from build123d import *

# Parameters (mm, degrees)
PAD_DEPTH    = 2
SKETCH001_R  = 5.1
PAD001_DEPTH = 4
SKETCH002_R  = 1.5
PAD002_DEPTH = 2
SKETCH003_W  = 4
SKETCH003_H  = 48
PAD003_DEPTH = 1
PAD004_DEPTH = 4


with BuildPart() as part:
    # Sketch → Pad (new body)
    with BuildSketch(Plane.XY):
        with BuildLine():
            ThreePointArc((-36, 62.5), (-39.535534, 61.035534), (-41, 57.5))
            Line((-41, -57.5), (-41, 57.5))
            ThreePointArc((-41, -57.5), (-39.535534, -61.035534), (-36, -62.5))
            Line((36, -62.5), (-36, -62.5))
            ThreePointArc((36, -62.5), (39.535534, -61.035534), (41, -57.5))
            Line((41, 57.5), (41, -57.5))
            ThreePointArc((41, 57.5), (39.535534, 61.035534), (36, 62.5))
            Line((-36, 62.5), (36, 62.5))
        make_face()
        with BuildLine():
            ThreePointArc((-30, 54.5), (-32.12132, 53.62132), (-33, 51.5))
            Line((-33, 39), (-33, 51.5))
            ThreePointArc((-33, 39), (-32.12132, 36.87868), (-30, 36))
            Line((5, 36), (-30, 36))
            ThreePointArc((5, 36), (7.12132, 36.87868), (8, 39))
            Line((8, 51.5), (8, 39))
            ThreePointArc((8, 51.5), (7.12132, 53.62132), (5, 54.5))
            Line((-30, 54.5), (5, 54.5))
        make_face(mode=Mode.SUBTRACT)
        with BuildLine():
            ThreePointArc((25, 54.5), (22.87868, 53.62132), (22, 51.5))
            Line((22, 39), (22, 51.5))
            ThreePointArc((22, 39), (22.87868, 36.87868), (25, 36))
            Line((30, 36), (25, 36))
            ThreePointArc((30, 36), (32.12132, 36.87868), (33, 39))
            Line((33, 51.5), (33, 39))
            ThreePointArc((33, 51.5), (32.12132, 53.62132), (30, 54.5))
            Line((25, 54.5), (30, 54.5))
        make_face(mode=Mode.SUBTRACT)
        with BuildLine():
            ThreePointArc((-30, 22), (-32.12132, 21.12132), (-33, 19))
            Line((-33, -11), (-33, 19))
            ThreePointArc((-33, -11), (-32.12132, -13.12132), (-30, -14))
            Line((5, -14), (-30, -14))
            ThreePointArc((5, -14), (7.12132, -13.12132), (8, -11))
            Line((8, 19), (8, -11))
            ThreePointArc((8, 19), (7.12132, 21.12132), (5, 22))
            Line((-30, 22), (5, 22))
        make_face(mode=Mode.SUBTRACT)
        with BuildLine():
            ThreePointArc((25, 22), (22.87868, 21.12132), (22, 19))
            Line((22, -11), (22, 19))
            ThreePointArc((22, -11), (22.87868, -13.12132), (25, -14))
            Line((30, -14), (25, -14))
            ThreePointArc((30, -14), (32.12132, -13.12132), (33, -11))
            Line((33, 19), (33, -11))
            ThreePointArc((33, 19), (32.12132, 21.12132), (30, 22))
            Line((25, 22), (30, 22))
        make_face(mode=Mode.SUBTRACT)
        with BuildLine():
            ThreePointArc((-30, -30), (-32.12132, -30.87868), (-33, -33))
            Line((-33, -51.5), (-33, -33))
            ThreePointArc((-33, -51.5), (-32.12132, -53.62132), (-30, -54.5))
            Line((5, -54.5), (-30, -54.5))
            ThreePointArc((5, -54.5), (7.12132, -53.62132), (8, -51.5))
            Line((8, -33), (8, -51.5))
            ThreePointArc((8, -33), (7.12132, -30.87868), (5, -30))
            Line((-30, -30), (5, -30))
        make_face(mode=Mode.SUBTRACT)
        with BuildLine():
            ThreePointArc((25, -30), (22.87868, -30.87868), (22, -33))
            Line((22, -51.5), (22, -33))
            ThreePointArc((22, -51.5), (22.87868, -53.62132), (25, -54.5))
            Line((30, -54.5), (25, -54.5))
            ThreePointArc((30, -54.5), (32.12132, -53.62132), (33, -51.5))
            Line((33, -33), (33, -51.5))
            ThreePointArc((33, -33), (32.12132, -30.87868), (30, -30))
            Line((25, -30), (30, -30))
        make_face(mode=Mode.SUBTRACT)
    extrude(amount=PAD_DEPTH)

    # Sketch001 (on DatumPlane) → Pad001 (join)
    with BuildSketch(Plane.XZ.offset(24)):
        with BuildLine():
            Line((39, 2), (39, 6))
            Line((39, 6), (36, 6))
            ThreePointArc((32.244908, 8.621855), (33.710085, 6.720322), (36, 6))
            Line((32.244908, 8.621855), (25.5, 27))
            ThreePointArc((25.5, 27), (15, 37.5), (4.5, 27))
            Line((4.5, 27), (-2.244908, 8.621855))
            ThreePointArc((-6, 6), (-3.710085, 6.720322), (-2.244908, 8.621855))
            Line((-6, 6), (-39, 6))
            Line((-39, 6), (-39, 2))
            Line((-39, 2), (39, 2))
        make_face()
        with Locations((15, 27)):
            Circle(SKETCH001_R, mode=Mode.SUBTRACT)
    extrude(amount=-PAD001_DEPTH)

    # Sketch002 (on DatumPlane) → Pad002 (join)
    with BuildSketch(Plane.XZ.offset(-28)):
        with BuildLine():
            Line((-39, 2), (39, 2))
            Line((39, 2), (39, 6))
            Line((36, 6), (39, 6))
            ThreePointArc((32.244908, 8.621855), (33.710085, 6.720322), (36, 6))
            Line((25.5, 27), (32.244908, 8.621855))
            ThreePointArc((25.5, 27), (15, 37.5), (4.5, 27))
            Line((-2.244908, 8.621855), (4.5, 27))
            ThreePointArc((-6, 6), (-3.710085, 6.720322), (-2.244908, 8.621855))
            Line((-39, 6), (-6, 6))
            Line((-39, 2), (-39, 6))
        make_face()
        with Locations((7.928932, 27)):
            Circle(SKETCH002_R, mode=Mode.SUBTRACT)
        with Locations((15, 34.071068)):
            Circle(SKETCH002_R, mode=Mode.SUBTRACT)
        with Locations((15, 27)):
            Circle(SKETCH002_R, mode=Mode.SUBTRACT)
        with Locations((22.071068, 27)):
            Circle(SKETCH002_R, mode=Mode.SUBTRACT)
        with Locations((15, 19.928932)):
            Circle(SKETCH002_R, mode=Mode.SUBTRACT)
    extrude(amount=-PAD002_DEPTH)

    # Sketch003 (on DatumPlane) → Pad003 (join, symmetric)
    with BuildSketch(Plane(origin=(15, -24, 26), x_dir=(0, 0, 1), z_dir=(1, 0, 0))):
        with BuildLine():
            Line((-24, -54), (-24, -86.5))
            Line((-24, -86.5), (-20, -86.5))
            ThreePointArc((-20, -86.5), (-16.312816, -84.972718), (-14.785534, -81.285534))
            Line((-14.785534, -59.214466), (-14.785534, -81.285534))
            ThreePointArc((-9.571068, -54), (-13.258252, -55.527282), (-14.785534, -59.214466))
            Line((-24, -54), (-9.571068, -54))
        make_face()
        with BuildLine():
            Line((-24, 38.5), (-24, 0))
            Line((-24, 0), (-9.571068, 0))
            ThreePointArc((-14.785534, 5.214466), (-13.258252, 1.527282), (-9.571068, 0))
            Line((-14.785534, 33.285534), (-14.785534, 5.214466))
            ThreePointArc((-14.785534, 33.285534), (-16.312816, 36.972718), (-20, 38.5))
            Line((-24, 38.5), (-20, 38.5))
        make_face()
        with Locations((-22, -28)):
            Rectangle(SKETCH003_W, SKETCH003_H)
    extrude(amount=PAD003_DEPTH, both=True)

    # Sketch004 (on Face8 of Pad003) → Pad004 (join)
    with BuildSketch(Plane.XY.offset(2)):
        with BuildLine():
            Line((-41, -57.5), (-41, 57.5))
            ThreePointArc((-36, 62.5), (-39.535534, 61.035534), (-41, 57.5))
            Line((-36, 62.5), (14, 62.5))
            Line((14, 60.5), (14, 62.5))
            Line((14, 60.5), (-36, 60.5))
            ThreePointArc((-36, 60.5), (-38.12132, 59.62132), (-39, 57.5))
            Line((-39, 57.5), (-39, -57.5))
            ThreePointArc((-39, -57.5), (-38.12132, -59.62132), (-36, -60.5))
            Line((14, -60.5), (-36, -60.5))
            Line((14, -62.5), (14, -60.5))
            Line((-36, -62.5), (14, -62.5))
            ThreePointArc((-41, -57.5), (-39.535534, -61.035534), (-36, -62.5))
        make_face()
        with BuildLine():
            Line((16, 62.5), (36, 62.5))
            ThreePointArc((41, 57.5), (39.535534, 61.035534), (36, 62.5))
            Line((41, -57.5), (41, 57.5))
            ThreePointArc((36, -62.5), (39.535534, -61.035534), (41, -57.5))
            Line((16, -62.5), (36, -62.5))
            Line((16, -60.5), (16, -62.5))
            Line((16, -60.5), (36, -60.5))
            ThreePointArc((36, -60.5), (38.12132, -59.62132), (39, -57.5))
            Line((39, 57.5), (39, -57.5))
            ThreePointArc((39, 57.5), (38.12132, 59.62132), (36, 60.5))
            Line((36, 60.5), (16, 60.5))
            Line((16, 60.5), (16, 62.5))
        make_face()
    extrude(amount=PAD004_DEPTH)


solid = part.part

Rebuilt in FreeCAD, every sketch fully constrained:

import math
import FreeCAD as App
import Part
import Sketcher
from FreeCAD import Vector

doc = App.newDocument("Part")
body = doc.addObject("PartDesign::Body", "Body")

# Sketch on XY plane
sketch1 = body.newObject("Sketcher::SketchObject", "Sketch")
sketch1.AttachmentSupport = (doc.getObject("XY_Plane"), [""])
sketch1.MapMode = "FlatFace"
sketch1.addGeometry(Part.ArcOfCircle(Part.Circle(Vector(-36, 57.5, 0), Vector(0, 0, 1), 5), math.radians(89.999996), math.radians(180.000004)), False)
sketch1.addGeometry(Part.LineSegment(Vector(-41, 57.5, 0), Vector(-41, -57.5, 0)), False)
sketch1.addGeometry(Part.ArcOfCircle(Part.Circle(Vector(-36, -57.5, 0), Vector(0, 0, 1), 5), math.radians(179.999996), math.radians(270.000004)), False)
sketch1.addGeometry(Part.LineSegment(Vector(-36, -62.5, 0), Vector(36, -62.5, 0)), False)
sketch1.addGeometry(Part.ArcOfCircle(Part.Circle(Vector(36, -57.5, 0), Vector(0, 0, 1), 5), math.radians(-90.000004), math.radians(0.000004)), False)
sketch1.addGeometry(Part.LineSegment(Vector(41, -57.5, 0), Vector(41, 57.5, 0)), False)
sketch1.addGeometry(Part.ArcOfCircle(Part.Circle(Vector(36, 57.5, 0), Vector(0, 0, 1), 5), math.radians(-0.000004), math.radians(90.000004)), False)
sketch1.addGeometry(Part.LineSegment(Vector(36, 62.5, 0), Vector(-36, 62.5, 0)), False)
sketch1.addGeometry(Part.ArcOfCircle(Part.Circle(Vector(-29.999999, -33.000001, 0), Vector(0, 0, 1), 3.000001), math.radians(90.000022), math.radians(179.999978)), False)
sketch1.addGeometry(Part.LineSegment(Vector(-30, -30, 0), Vector(5, -30, 0)), False)
sketch1.addGeometry(Part.ArcOfCircle(Part.Circle(Vector(4.999999, -33.000001, 0), Vector(0, 0, 1), 3.000001), math.radians(0.000022), math.radians(89.999978)), False)
sketch1.addGeometry(Part.LineSegment(Vector(8, -33, 0), Vector(8, -51.5, 0)), False)
sketch1.addGeometry(Part.ArcOfCircle(Part.Circle(Vector(4.999999, -51.499999, 0), Vector(0, 0, 1), 3.000001), math.radians(-89.999978), math.radians(-0.000022)), False)
sketch1.addGeometry(Part.LineSegment(Vector(5, -54.5, 0), Vector(-30, -54.5, 0)), False)
sketch1.addGeometry(Part.ArcOfCircle(Part.Circle(Vector(-29.999999, -51.499999, 0), Vector(0, 0, 1), 3.000001), math.radians(-179.999978), math.radians(-90.000022)), False)
sketch1.addGeometry(Part.LineSegment(Vector(-33, -51.5, 0), Vector(-33, -33, 0)), False)
sketch1.addGeometry(Part.ArcOfCircle(Part.Circle(Vector(25.000001, -33.000001, 0), Vector(0, 0, 1), 3.000001), math.radians(90.000022), math.radians(179.999978)), False)
sketch1.addGeometry(Part.LineSegment(Vector(25, -30, 0), Vector(30, -30, 0)), False)
sketch1.addGeometry(Part.ArcOfCircle(Part.Circle(Vector(29.999999, -33.000001, 0), Vector(0, 0, 1), 3.000001), math.radians(0.000022), math.radians(89.999978)), False)
sketch1.addGeometry(Part.LineSegment(Vector(33, -33, 0), Vector(33, -51.5, 0)), False)
sketch1.addGeometry(Part.ArcOfCircle(Part.Circle(Vector(29.999999, -51.499999, 0), Vector(0, 0, 1), 3.000001), math.radians(-89.999978), math.radians(-0.000022)), False)
sketch1.addGeometry(Part.LineSegment(Vector(30, -54.5, 0), Vector(25, -54.5, 0)), False)
sketch1.addGeometry(Part.ArcOfCircle(Part.Circle(Vector(25.000001, -51.499999, 0), Vector(0, 0, 1), 3.000001), math.radians(-179.999978), math.radians(-90.000022)), False)
sketch1.addGeometry(Part.LineSegment(Vector(22, -51.5, 0), Vector(22, -33, 0)), False)
sketch1.addGeometry(Part.ArcOfCircle(Part.Circle(Vector(-29.999999, 18.999999, 0), Vector(0, 0, 1), 3.000001), math.radians(90.000022), math.radians(179.999978)), False)
sketch1.addGeometry(Part.LineSegment(Vector(-30, 22, 0), Vector(5, 22, 0)), False)
sketch1.addGeometry(Part.ArcOfCircle(Part.Circle(Vector(4.999999, 18.999999, 0), Vector(0, 0, 1), 3.000001), math.radians(0.000022), math.radians(89.999978)), False)
sketch1.addGeometry(Part.LineSegment(Vector(8, 19, 0), Vector(8, -11, 0)), False)
sketch1.addGeometry(Part.ArcOfCircle(Part.Circle(Vector(4.999999, -10.999999, 0), Vector(0, 0, 1), 3.000001), math.radians(-89.999978), math.radians(-0.000022)), False)
sketch1.addGeometry(Part.LineSegment(Vector(5, -14, 0), Vector(-30, -14, 0)), False)
sketch1.addGeometry(Part.ArcOfCircle(Part.Circle(Vector(-29.999999, -10.999999, 0), Vector(0, 0, 1), 3.000001), math.radians(-179.999978), math.radians(-90.000022)), False)
sketch1.addGeometry(Part.LineSegment(Vector(-33, -11, 0), Vector(-33, 19, 0)), False)
sketch1.addGeometry(Part.ArcOfCircle(Part.Circle(Vector(-29.999999, 51.499999, 0), Vector(0, 0, 1), 3.000001), math.radians(90.000022), math.radians(179.999978)), False)
sketch1.addGeometry(Part.LineSegment(Vector(-30, 54.5, 0), Vector(5, 54.5, 0)), False)
sketch1.addGeometry(Part.ArcOfCircle(Part.Circle(Vector(4.999999, 51.499999, 0), Vector(0, 0, 1), 3.000001), math.radians(0.000022), math.radians(89.999978)), False)
sketch1.addGeometry(Part.LineSegment(Vector(8, 51.5, 0), Vector(8, 39, 0)), False)
sketch1.addGeometry(Part.ArcOfCircle(Part.Circle(Vector(4.999999, 39.000001, 0), Vector(0, 0, 1), 3.000001), math.radians(-89.999978), math.radians(-0.000022)), False)
sketch1.addGeometry(Part.LineSegment(Vector(5, 36, 0), Vector(-30, 36, 0)), False)
sketch1.addGeometry(Part.ArcOfCircle(Part.Circle(Vector(-29.999999, 39.000001, 0), Vector(0, 0, 1), 3.000001), math.radians(-179.999978), math.radians(-90.000022)), False)
sketch1.addGeometry(Part.LineSegment(Vector(-33, 39, 0), Vector(-33, 51.5, 0)), False)
sketch1.addGeometry(Part.ArcOfCircle(Part.Circle(Vector(25.000001, 18.999999, 0), Vector(0, 0, 1), 3.000001), math.radians(90.000022), math.radians(179.999978)), False)
sketch1.addGeometry(Part.LineSegment(Vector(25, 22, 0), Vector(30, 22, 0)), False)
sketch1.addGeometry(Part.ArcOfCircle(Part.Circle(Vector(29.999999, 18.999999, 0), Vector(0, 0, 1), 3.000001), math.radians(0.000022), math.radians(89.999978)), False)
sketch1.addGeometry(Part.LineSegment(Vector(33, 19, 0), Vector(33, -11, 0)), False)
sketch1.addGeometry(Part.ArcOfCircle(Part.Circle(Vector(29.999999, -10.999999, 0), Vector(0, 0, 1), 3.000001), math.radians(-89.999978), math.radians(-0.000022)), False)
sketch1.addGeometry(Part.LineSegment(Vector(30, -14, 0), Vector(25, -14, 0)), False)
sketch1.addGeometry(Part.ArcOfCircle(Part.Circle(Vector(25.000001, -10.999999, 0), Vector(0, 0, 1), 3.000001), math.radians(-179.999978), math.radians(-90.000022)), False)
sketch1.addGeometry(Part.LineSegment(Vector(22, -11, 0), Vector(22, 19, 0)), False)
sketch1.addGeometry(Part.ArcOfCircle(Part.Circle(Vector(25.000001, 51.499999, 0), Vector(0, 0, 1), 3.000001), math.radians(90.000022), math.radians(179.999978)), False)
sketch1.addGeometry(Part.LineSegment(Vector(25, 54.5, 0), Vector(30, 54.5, 0)), False)
sketch1.addGeometry(Part.ArcOfCircle(Part.Circle(Vector(29.999999, 51.499999, 0), Vector(0, 0, 1), 3.000001), math.radians(0.000022), math.radians(89.999978)), False)
sketch1.addGeometry(Part.LineSegment(Vector(33, 51.5, 0), Vector(33, 39, 0)), False)
sketch1.addGeometry(Part.ArcOfCircle(Part.Circle(Vector(29.999999, 39.000001, 0), Vector(0, 0, 1), 3.000001), math.radians(-89.999978), math.radians(-0.000022)), False)
sketch1.addGeometry(Part.LineSegment(Vector(30, 36, 0), Vector(25, 36, 0)), False)
sketch1.addGeometry(Part.ArcOfCircle(Part.Circle(Vector(25.000001, 39.000001, 0), Vector(0, 0, 1), 3.000001), math.radians(-179.999978), math.radians(-90.000022)), False)
sketch1.addGeometry(Part.LineSegment(Vector(22, 39, 0), Vector(22, 51.5, 0)), False)
sketch1.addConstraint(Sketcher.Constraint("Tangent", 0, 2, 1, 1))
sketch1.addConstraint(Sketcher.Constraint("Tangent", 1, 2, 2, 1))
sketch1.addConstraint(Sketcher.Constraint("Tangent", 2, 2, 3, 1))
sketch1.addConstraint(Sketcher.Constraint("Tangent", 3, 2, 4, 1))
sketch1.addConstraint(Sketcher.Constraint("Tangent", 4, 2, 5, 1))
sketch1.addConstraint(Sketcher.Constraint("Tangent", 5, 2, 6, 1))
sketch1.addConstraint(Sketcher.Constraint("Tangent", 6, 2, 7, 1))
sketch1.addConstraint(Sketcher.Constraint("Tangent", 7, 2, 0, 1))
sketch1.addConstraint(Sketcher.Constraint("Tangent", 8, 1, 9, 1))
sketch1.addConstraint(Sketcher.Constraint("Tangent", 9, 2, 10, 2))
sketch1.addConstraint(Sketcher.Constraint("Tangent", 10, 1, 11, 1))
sketch1.addConstraint(Sketcher.Constraint("Tangent", 11, 2, 12, 2))
sketch1.addConstraint(Sketcher.Constraint("Tangent", 12, 1, 13, 1))
sketch1.addConstraint(Sketcher.Constraint("Tangent", 13, 2, 14, 2))
sketch1.addConstraint(Sketcher.Constraint("Tangent", 14, 1, 15, 1))
sketch1.addConstraint(Sketcher.Constraint("Tangent", 15, 2, 8, 2))
sketch1.addConstraint(Sketcher.Constraint("Tangent", 16, 1, 17, 1))
sketch1.addConstraint(Sketcher.Constraint("Tangent", 17, 2, 18, 2))
sketch1.addConstraint(Sketcher.Constraint("Tangent", 18, 1, 19, 1))
sketch1.addConstraint(Sketcher.Constraint("Tangent", 19, 2, 20, 2))
sketch1.addConstraint(Sketcher.Constraint("Tangent", 20, 1, 21, 1))
sketch1.addConstraint(Sketcher.Constraint("Tangent", 21, 2, 22, 2))
sketch1.addConstraint(Sketcher.Constraint("Tangent", 22, 1, 23, 1))
sketch1.addConstraint(Sketcher.Constraint("Tangent", 23, 2, 16, 2))
sketch1.addConstraint(Sketcher.Constraint("Tangent", 24, 1, 25, 1))
sketch1.addConstraint(Sketcher.Constraint("Tangent", 25, 2, 26, 2))
sketch1.addConstraint(Sketcher.Constraint("Tangent", 26, 1, 27, 1))
sketch1.addConstraint(Sketcher.Constraint("Tangent", 27, 2, 28, 2))
sketch1.addConstraint(Sketcher.Constraint("Tangent", 28, 1, 29, 1))
sketch1.addConstraint(Sketcher.Constraint("Tangent", 29, 2, 30, 2))
sketch1.addConstraint(Sketcher.Constraint("Tangent", 30, 1, 31, 1))
sketch1.addConstraint(Sketcher.Constraint("Tangent", 31, 2, 24, 2))
sketch1.addConstraint(Sketcher.Constraint("Tangent", 32, 1, 33, 1))
sketch1.addConstraint(Sketcher.Constraint("Tangent", 33, 2, 34, 2))
sketch1.addConstraint(Sketcher.Constraint("Tangent", 34, 1, 35, 1))
sketch1.addConstraint(Sketcher.Constraint("Tangent", 35, 2, 36, 2))
sketch1.addConstraint(Sketcher.Constraint("Tangent", 36, 1, 37, 1))
sketch1.addConstraint(Sketcher.Constraint("Tangent", 37, 2, 38, 2))
sketch1.addConstraint(Sketcher.Constraint("Tangent", 38, 1, 39, 1))
sketch1.addConstraint(Sketcher.Constraint("Tangent", 39, 2, 32, 2))
sketch1.addConstraint(Sketcher.Constraint("Tangent", 40, 1, 41, 1))
sketch1.addConstraint(Sketcher.Constraint("Tangent", 41, 2, 42, 2))
sketch1.addConstraint(Sketcher.Constraint("Tangent", 42, 1, 43, 1))
sketch1.addConstraint(Sketcher.Constraint("Tangent", 43, 2, 44, 2))
sketch1.addConstraint(Sketcher.Constraint("Tangent", 44, 1, 45, 1))
sketch1.addConstraint(Sketcher.Constraint("Tangent", 45, 2, 46, 2))
sketch1.addConstraint(Sketcher.Constraint("Tangent", 46, 1, 47, 1))
sketch1.addConstraint(Sketcher.Constraint("Tangent", 47, 2, 40, 2))
sketch1.addConstraint(Sketcher.Constraint("Tangent", 48, 1, 49, 1))
sketch1.addConstraint(Sketcher.Constraint("Tangent", 49, 2, 50, 2))
sketch1.addConstraint(Sketcher.Constraint("Tangent", 50, 1, 51, 1))
sketch1.addConstraint(Sketcher.Constraint("Tangent", 51, 2, 52, 2))
sketch1.addConstraint(Sketcher.Constraint("Tangent", 52, 1, 53, 1))
sketch1.addConstraint(Sketcher.Constraint("Tangent", 53, 2, 54, 2))
sketch1.addConstraint(Sketcher.Constraint("Tangent", 54, 1, 55, 1))
sketch1.addConstraint(Sketcher.Constraint("Tangent", 55, 2, 48, 2))
sketch1.addConstraint(Sketcher.Constraint("Vertical", 1))
sketch1.addConstraint(Sketcher.Constraint("Horizontal", 3))
sketch1.addConstraint(Sketcher.Constraint("Vertical", 5))
sketch1.addConstraint(Sketcher.Constraint("Horizontal", 7))
sketch1.addConstraint(Sketcher.Constraint("Horizontal", 9))
sketch1.addConstraint(Sketcher.Constraint("Vertical", 11))
sketch1.addConstraint(Sketcher.Constraint("Horizontal", 13))
sketch1.addConstraint(Sketcher.Constraint("Vertical", 15))
sketch1.addConstraint(Sketcher.Constraint("Horizontal", 17))
sketch1.addConstraint(Sketcher.Constraint("Vertical", 19))
sketch1.addConstraint(Sketcher.Constraint("Horizontal", 21))
sketch1.addConstraint(Sketcher.Constraint("Vertical", 23))
sketch1.addConstraint(Sketcher.Constraint("Horizontal", 25))
sketch1.addConstraint(Sketcher.Constraint("Vertical", 27))
sketch1.addConstraint(Sketcher.Constraint("Horizontal", 29))
sketch1.addConstraint(Sketcher.Constraint("Vertical", 31))
sketch1.addConstraint(Sketcher.Constraint("Horizontal", 33))
sketch1.addConstraint(Sketcher.Constraint("Vertical", 35))
sketch1.addConstraint(Sketcher.Constraint("Horizontal", 37))
sketch1.addConstraint(Sketcher.Constraint("Vertical", 39))
sketch1.addConstraint(Sketcher.Constraint("Horizontal", 41))
sketch1.addConstraint(Sketcher.Constraint("Vertical", 43))
sketch1.addConstraint(Sketcher.Constraint("Horizontal", 45))
sketch1.addConstraint(Sketcher.Constraint("Vertical", 47))
sketch1.addConstraint(Sketcher.Constraint("Horizontal", 49))
sketch1.addConstraint(Sketcher.Constraint("Vertical", 51))
sketch1.addConstraint(Sketcher.Constraint("Horizontal", 53))
sketch1.addConstraint(Sketcher.Constraint("Vertical", 55))
sketch1.addConstraint(Sketcher.Constraint("Equal", 0, 2))
sketch1.addConstraint(Sketcher.Constraint("Equal", 2, 4))
sketch1.addConstraint(Sketcher.Constraint("Equal", 4, 6))
sketch1.addConstraint(Sketcher.Constraint("Equal", 8, 10))
sketch1.addConstraint(Sketcher.Constraint("Equal", 10, 12))
sketch1.addConstraint(Sketcher.Constraint("Equal", 12, 14))
sketch1.addConstraint(Sketcher.Constraint("Equal", 14, 16))
sketch1.addConstraint(Sketcher.Constraint("Equal", 16, 18))
sketch1.addConstraint(Sketcher.Constraint("Equal", 18, 20))
sketch1.addConstraint(Sketcher.Constraint("Equal", 20, 22))
sketch1.addConstraint(Sketcher.Constraint("Equal", 22, 24))
sketch1.addConstraint(Sketcher.Constraint("Equal", 24, 26))
sketch1.addConstraint(Sketcher.Constraint("Equal", 26, 28))
sketch1.addConstraint(Sketcher.Constraint("Equal", 28, 30))
sketch1.addConstraint(Sketcher.Constraint("Equal", 30, 32))
sketch1.addConstraint(Sketcher.Constraint("Equal", 32, 34))
sketch1.addConstraint(Sketcher.Constraint("Equal", 34, 36))
sketch1.addConstraint(Sketcher.Constraint("Equal", 36, 38))
sketch1.addConstraint(Sketcher.Constraint("Equal", 38, 40))
sketch1.addConstraint(Sketcher.Constraint("Equal", 40, 42))
sketch1.addConstraint(Sketcher.Constraint("Equal", 42, 44))
sketch1.addConstraint(Sketcher.Constraint("Equal", 44, 46))
sketch1.addConstraint(Sketcher.Constraint("Equal", 46, 48))
sketch1.addConstraint(Sketcher.Constraint("Equal", 48, 50))
sketch1.addConstraint(Sketcher.Constraint("Equal", 50, 52))
sketch1.addConstraint(Sketcher.Constraint("Equal", 52, 54))
sketch1.addConstraint(Sketcher.Constraint("Symmetric", 0, 3, 4, 3, -1, 1))
sketch1.addConstraint(Sketcher.Constraint("Symmetric", 20, 3, 32, 3, -1, 1))
sketch1.addConstraint(Sketcher.Constraint("Symmetric", 14, 3, 50, 3, -1, 1))
sketch1.addConstraint(Sketcher.Constraint("Symmetric", 8, 3, 18, 3, -2))
sketch1.addConstraint(Sketcher.Constraint("Symmetric", 24, 3, 42, 3, -2))
sketch1.addConstraint(Sketcher.Constraint("Symmetric", 12, 3, 34, 3, -1))
sketch1.addConstraint(Sketcher.Constraint("Horizontal", 30, 3, 44, 3))
sketch1.addConstraint(Sketcher.Constraint("Horizontal", 38, 3, 52, 3))
sketch1.addConstraint(Sketcher.Constraint("Vertical", 14, 3, 24, 3))
sketch1.addConstraint(Sketcher.Constraint("Vertical", 12, 3, 26, 3))
sketch1.addConstraint(Sketcher.Constraint("Vertical", 22, 3, 40, 3))
sketch1.addConstraint(Sketcher.Constraint("Vertical", 46, 3, 48, 3))
sketch1.addConstraint(Sketcher.Constraint("Radius", 0, 5.0))
sketch1.addConstraint(Sketcher.Constraint("Radius", 8, 3.000001))
sketch1.addConstraint(Sketcher.Constraint("DistanceX", 3, 1, 3, 2, 72.0))
sketch1.addConstraint(Sketcher.Constraint("DistanceX", 9, 1, 9, 2, 35.0))
sketch1.addConstraint(Sketcher.Constraint("DistanceX", 17, 1, 17, 2, 5.0))
sketch1.addConstraint(Sketcher.Constraint("DistanceY", 1, 2, 1, 1, 115.0))
sketch1.addConstraint(Sketcher.Constraint("DistanceY", 27, 2, 27, 1, 30.0))
sketch1.addConstraint(Sketcher.Constraint("DistanceY", 11, 2, 11, 1, 18.5))
sketch1.addConstraint(Sketcher.Constraint("DistanceY", 35, 2, 35, 1, 12.5))
sketch1.addConstraint(Sketcher.Constraint("DistanceX", 8, 3, -1, 1, 29.999999))
sketch1.addConstraint(Sketcher.Constraint("DistanceY", 8, 3, -1, 1, 33.000001))
sketch1.addConstraint(Sketcher.Constraint("DistanceY", -1, 1, 24, 3, 18.999999))
pad1 = body.newObject("PartDesign::Pad", "Pad")
pad1.Profile = sketch1
pad1.Length = 2

# Sketch on XZ plane
sketch2 = body.newObject("Sketcher::SketchObject", "Sketch001")
sketch2.AttachmentSupport = (doc.getObject("XZ_Plane"), [""])
sketch2.MapMode = "FlatFace"
sketch2.AttachmentOffset = App.Placement(Vector(0, 0, 24), App.Rotation())
sketch2.addGeometry(Part.LineSegment(Vector(39, 2, 0), Vector(39, 6, 0)), False)
sketch2.addGeometry(Part.LineSegment(Vector(39, 6, 0), Vector(36, 6, 0)), False)
sketch2.addGeometry(Part.ArcOfCircle(Part.Circle(Vector(36.000001, 10.000001, 0), Vector(0, 0, 1), 4.000001), math.radians(-159.846504), math.radians(-90.000008)), False)
sketch2.addGeometry(Part.LineSegment(Vector(32.244908, 8.621855, 0), Vector(25.5, 27, 0)), False)
sketch2.addGeometry(Part.ArcOfCircle(Part.Circle(Vector(15, 27, 0), Vector(0, 0, 1), 10.5), math.radians(0), math.radians(180)), False)
sketch2.addGeometry(Part.LineSegment(Vector(4.5, 27, 0), Vector(-2.244908, 8.621855, 0)), False)
sketch2.addGeometry(Part.ArcOfCircle(Part.Circle(Vector(-6.000001, 10.000001, 0), Vector(0, 0, 1), 4.000001), math.radians(-89.999992), math.radians(-20.153496)), False)
sketch2.addGeometry(Part.LineSegment(Vector(-6, 6, 0), Vector(-39, 6, 0)), False)
sketch2.addGeometry(Part.LineSegment(Vector(-39, 6, 0), Vector(-39, 2, 0)), False)
sketch2.addGeometry(Part.LineSegment(Vector(-39, 2, 0), Vector(39, 2, 0)), False)
sketch2.addGeometry(Part.Circle(Vector(15, 27, 0), Vector(0, 0, 1), 5.1), False)
sketch2.addConstraint(Sketcher.Constraint("Coincident", 0, 2, 1, 1))
sketch2.addConstraint(Sketcher.Constraint("Tangent", 1, 2, 2, 2))
sketch2.addConstraint(Sketcher.Constraint("Tangent", 2, 1, 3, 1))
sketch2.addConstraint(Sketcher.Constraint("Coincident", 3, 2, 4, 1))
sketch2.addConstraint(Sketcher.Constraint("Coincident", 4, 2, 5, 1))
sketch2.addConstraint(Sketcher.Constraint("Tangent", 5, 2, 6, 2))
sketch2.addConstraint(Sketcher.Constraint("Tangent", 6, 1, 7, 1))
sketch2.addConstraint(Sketcher.Constraint("Coincident", 7, 2, 8, 1))
sketch2.addConstraint(Sketcher.Constraint("Coincident", 8, 2, 9, 1))
sketch2.addConstraint(Sketcher.Constraint("Coincident", 9, 2, 0, 1))
sketch2.addConstraint(Sketcher.Constraint("Vertical", 0))
sketch2.addConstraint(Sketcher.Constraint("Horizontal", 1))
sketch2.addConstraint(Sketcher.Constraint("Horizontal", 7))
sketch2.addConstraint(Sketcher.Constraint("Vertical", 8))
sketch2.addConstraint(Sketcher.Constraint("Horizontal", 9))
sketch2.addConstraint(Sketcher.Constraint("Coincident", 10, 3, 4, 3))
sketch2.addConstraint(Sketcher.Constraint("Equal", 2, 6))
sketch2.addConstraint(Sketcher.Constraint("Symmetric", 0, 2, 7, 2, -2))
sketch2.addConstraint(Sketcher.Constraint("Horizontal", 10, 3, 3, 2))
sketch2.addConstraint(Sketcher.Constraint("Horizontal", 3, 2, 4, 2))
sketch2.addConstraint(Sketcher.Constraint("Horizontal", 2, 1, 5, 2))
sketch2.addConstraint(Sketcher.Constraint("Radius", 2, 4.000001))
sketch2.addConstraint(Sketcher.Constraint("Diameter", 10, 10.2))
sketch2.addConstraint(Sketcher.Constraint("Radius", 4, 10.5))
sketch2.addConstraint(Sketcher.Constraint("DistanceX", 1, 2, 1, 1, 3.0))
sketch2.addConstraint(Sketcher.Constraint("DistanceX", 7, 2, 7, 1, 33.0))
sketch2.addConstraint(Sketcher.Constraint("DistanceX", 9, 1, 9, 2, 78.0))
sketch2.addConstraint(Sketcher.Constraint("DistanceY", 0, 1, 0, 2, 4.0))
sketch2.addConstraint(Sketcher.Constraint("DistanceY", -1, 1, 2, 3, 10.000001))
sketch2.addConstraint(Sketcher.Constraint("DistanceY", -1, 1, 4, 3, 27.0))
pad2 = body.newObject("PartDesign::Pad", "Pad001")
pad2.Profile = sketch2
pad2.Length = 4
pad2.Reversed = True

# Sketch on XZ plane
sketch3 = body.newObject("Sketcher::SketchObject", "Sketch002")
sketch3.AttachmentSupport = (doc.getObject("XZ_Plane"), [""])
sketch3.MapMode = "FlatFace"
sketch3.AttachmentOffset = App.Placement(Vector(0, 0, -28), App.Rotation())
sketch3.addGeometry(Part.LineSegment(Vector(-39, 2, 0), Vector(39, 2, 0)), False)
sketch3.addGeometry(Part.LineSegment(Vector(39, 2, 0), Vector(39, 6, 0)), False)
sketch3.addGeometry(Part.LineSegment(Vector(39, 6, 0), Vector(36, 6, 0)), False)
sketch3.addGeometry(Part.ArcOfCircle(Part.Circle(Vector(36.000001, 10.000001, 0), Vector(0, 0, 1), 4.000001), math.radians(-159.846504), math.radians(-90.000008)), False)
sketch3.addGeometry(Part.LineSegment(Vector(32.244908, 8.621855, 0), Vector(25.5, 27, 0)), False)
sketch3.addGeometry(Part.ArcOfCircle(Part.Circle(Vector(15, 27, 0), Vector(0, 0, 1), 10.5), math.radians(0), math.radians(180)), False)
sketch3.addGeometry(Part.LineSegment(Vector(4.5, 27, 0), Vector(-2.244908, 8.621855, 0)), False)
sketch3.addGeometry(Part.ArcOfCircle(Part.Circle(Vector(-6.000001, 10.000001, 0), Vector(0, 0, 1), 4.000001), math.radians(-89.999992), math.radians(-20.153496)), False)
sketch3.addGeometry(Part.LineSegment(Vector(-6, 6, 0), Vector(-39, 6, 0)), False)
sketch3.addGeometry(Part.LineSegment(Vector(-39, 6, 0), Vector(-39, 2, 0)), False)
sketch3.addGeometry(Part.Circle(Vector(15, 19.928932, 0), Vector(0, 0, 1), 1.5), False)
sketch3.addGeometry(Part.Circle(Vector(7.928932, 27, 0), Vector(0, 0, 1), 1.5), False)
sketch3.addGeometry(Part.Circle(Vector(15, 27, 0), Vector(0, 0, 1), 1.5), False)
sketch3.addGeometry(Part.Circle(Vector(22.071068, 27, 0), Vector(0, 0, 1), 1.5), False)
sketch3.addGeometry(Part.Circle(Vector(15, 34.071068, 0), Vector(0, 0, 1), 1.5), False)
sketch3.addConstraint(Sketcher.Constraint("Coincident", 0, 2, 1, 1))
sketch3.addConstraint(Sketcher.Constraint("Coincident", 1, 2, 2, 1))
sketch3.addConstraint(Sketcher.Constraint("Tangent", 2, 2, 3, 2))
sketch3.addConstraint(Sketcher.Constraint("Tangent", 3, 1, 4, 1))
sketch3.addConstraint(Sketcher.Constraint("Coincident", 4, 2, 5, 1))
sketch3.addConstraint(Sketcher.Constraint("Coincident", 5, 2, 6, 1))
sketch3.addConstraint(Sketcher.Constraint("Tangent", 6, 2, 7, 2))
sketch3.addConstraint(Sketcher.Constraint("Tangent", 7, 1, 8, 1))
sketch3.addConstraint(Sketcher.Constraint("Coincident", 8, 2, 9, 1))
sketch3.addConstraint(Sketcher.Constraint("Coincident", 9, 2, 0, 1))
sketch3.addConstraint(Sketcher.Constraint("Horizontal", 0))
sketch3.addConstraint(Sketcher.Constraint("Vertical", 1))
sketch3.addConstraint(Sketcher.Constraint("Horizontal", 2))
sketch3.addConstraint(Sketcher.Constraint("Horizontal", 8))
sketch3.addConstraint(Sketcher.Constraint("Vertical", 9))
sketch3.addConstraint(Sketcher.Constraint("Coincident", 12, 3, 5, 3))
sketch3.addConstraint(Sketcher.Constraint("Equal", 3, 7))
sketch3.addConstraint(Sketcher.Constraint("Equal", 10, 11))
sketch3.addConstraint(Sketcher.Constraint("Equal", 11, 12))
sketch3.addConstraint(Sketcher.Constraint("Equal", 12, 13))
sketch3.addConstraint(Sketcher.Constraint("Equal", 13, 14))
sketch3.addConstraint(Sketcher.Constraint("Symmetric", 1, 2, 8, 2, -2))
sketch3.addConstraint(Sketcher.Constraint("Horizontal", 5, 3, 11, 3))
sketch3.addConstraint(Sketcher.Constraint("Horizontal", 12, 3, 13, 3))
sketch3.addConstraint(Sketcher.Constraint("Horizontal", 13, 3, 4, 2))
sketch3.addConstraint(Sketcher.Constraint("Horizontal", 4, 2, 5, 2))
sketch3.addConstraint(Sketcher.Constraint("Horizontal", 3, 1, 6, 2))
sketch3.addConstraint(Sketcher.Constraint("Vertical", 5, 3, 10, 3))
sketch3.addConstraint(Sketcher.Constraint("Vertical", 12, 3, 14, 3))
sketch3.addConstraint(Sketcher.Constraint("Diameter", 10, 3.0))
sketch3.addConstraint(Sketcher.Constraint("Radius", 3, 4.000001))
sketch3.addConstraint(Sketcher.Constraint("Radius", 5, 10.5))
sketch3.addConstraint(Sketcher.Constraint("DistanceX", 0, 1, 0, 2, 78.0))
sketch3.addConstraint(Sketcher.Constraint("DistanceX", 2, 2, 2, 1, 3.0))
sketch3.addConstraint(Sketcher.Constraint("DistanceX", 8, 2, 8, 1, 33.0))
sketch3.addConstraint(Sketcher.Constraint("DistanceY", 1, 1, 1, 2, 4.0))
sketch3.addConstraint(Sketcher.Constraint("DistanceY", -1, 1, 3, 3, 10.000001))
sketch3.addConstraint(Sketcher.Constraint("DistanceY", -1, 1, 5, 3, 27.0))
sketch3.addConstraint(Sketcher.Constraint("DistanceY", -1, 1, 10, 3, 19.928932))
sketch3.addConstraint(Sketcher.Constraint("DistanceX", -1, 1, 11, 3, 7.928932))
sketch3.addConstraint(Sketcher.Constraint("DistanceX", -1, 1, 13, 3, 22.071068))
sketch3.addConstraint(Sketcher.Constraint("DistanceY", -1, 1, 14, 3, 34.071068))
pad3 = body.newObject("PartDesign::Pad", "Pad002")
pad3.Profile = sketch3
pad3.Length = 2
pad3.Reversed = True

# Sketch on YZ plane
sketch4 = body.newObject("Sketcher::SketchObject", "Sketch003")
sketch4.AttachmentSupport = (doc.getObject("YZ_Plane"), [""])
sketch4.MapMode = "FlatFace"
sketch4.AttachmentOffset = App.Placement(Vector(0, 0, 15), App.Rotation())
sketch4.addGeometry(Part.LineSegment(Vector(30, 2, 0), Vector(62.5, 2, 0)), False)
sketch4.addGeometry(Part.LineSegment(Vector(62.5, 2, 0), Vector(62.5, 6, 0)), False)
sketch4.addGeometry(Part.ArcOfCircle(Part.Circle(Vector(57.285533, 5.999999, 0), Vector(0, 0, 1), 5.214467), math.radians(0.00001), math.radians(89.99999)), False)
sketch4.addGeometry(Part.LineSegment(Vector(57.285534, 11.214466, 0), Vector(35.214466, 11.214466, 0)), False)
sketch4.addGeometry(Part.ArcOfCircle(Part.Circle(Vector(35.214467, 16.428933, 0), Vector(0, 0, 1), 5.214467), math.radians(-179.99999), math.radians(-90.00001)), False)
sketch4.addGeometry(Part.LineSegment(Vector(30, 16.428932, 0), Vector(30, 2, 0)), False)
sketch4.addGeometry(Part.LineSegment(Vector(-62.5, 2, 0), Vector(-24, 2, 0)), False)
sketch4.addGeometry(Part.LineSegment(Vector(-24, 2, 0), Vector(-24, 16.428932, 0)), False)
sketch4.addGeometry(Part.ArcOfCircle(Part.Circle(Vector(-29.214467, 16.428933, 0), Vector(0, 0, 1), 5.214467), math.radians(-89.99999), math.radians(-0.00001)), False)
sketch4.addGeometry(Part.LineSegment(Vector(-29.214466, 11.214466, 0), Vector(-57.285534, 11.214466, 0)), False)
sketch4.addGeometry(Part.ArcOfCircle(Part.Circle(Vector(-57.285533, 5.999999, 0), Vector(0, 0, 1), 5.214467), math.radians(90.00001), math.radians(179.99999)), False)
sketch4.addGeometry(Part.LineSegment(Vector(-62.5, 6, 0), Vector(-62.5, 2, 0)), False)
sketch4.addGeometry(Part.LineSegment(Vector(-20, 2, 0), Vector(28, 2, 0)), False)
sketch4.addGeometry(Part.LineSegment(Vector(28, 2, 0), Vector(28, 6, 0)), False)
sketch4.addGeometry(Part.LineSegment(Vector(28, 6, 0), Vector(-20, 6, 0)), False)
sketch4.addGeometry(Part.LineSegment(Vector(-20, 6, 0), Vector(-20, 2, 0)), False)
sketch4.addConstraint(Sketcher.Constraint("Coincident", 0, 2, 1, 1))
sketch4.addConstraint(Sketcher.Constraint("Tangent", 1, 2, 2, 1))
sketch4.addConstraint(Sketcher.Constraint("Tangent", 2, 2, 3, 1))
sketch4.addConstraint(Sketcher.Constraint("Tangent", 3, 2, 4, 2))
sketch4.addConstraint(Sketcher.Constraint("Tangent", 4, 1, 5, 1))
sketch4.addConstraint(Sketcher.Constraint("Coincident", 5, 2, 0, 1))
sketch4.addConstraint(Sketcher.Constraint("Coincident", 6, 2, 7, 1))
sketch4.addConstraint(Sketcher.Constraint("Tangent", 7, 2, 8, 2))
sketch4.addConstraint(Sketcher.Constraint("Tangent", 8, 1, 9, 1))
sketch4.addConstraint(Sketcher.Constraint("Tangent", 9, 2, 10, 1))
sketch4.addConstraint(Sketcher.Constraint("Tangent", 10, 2, 11, 1))
sketch4.addConstraint(Sketcher.Constraint("Coincident", 11, 2, 6, 1))
sketch4.addConstraint(Sketcher.Constraint("Coincident", 12, 2, 13, 1))
sketch4.addConstraint(Sketcher.Constraint("Coincident", 13, 2, 14, 1))
sketch4.addConstraint(Sketcher.Constraint("Coincident", 14, 2, 15, 1))
sketch4.addConstraint(Sketcher.Constraint("Coincident", 15, 2, 12, 1))
sketch4.addConstraint(Sketcher.Constraint("Horizontal", 0))
sketch4.addConstraint(Sketcher.Constraint("Vertical", 1))
sketch4.addConstraint(Sketcher.Constraint("Horizontal", 3))
sketch4.addConstraint(Sketcher.Constraint("Vertical", 5))
sketch4.addConstraint(Sketcher.Constraint("Horizontal", 6))
sketch4.addConstraint(Sketcher.Constraint("Vertical", 7))
sketch4.addConstraint(Sketcher.Constraint("Horizontal", 9))
sketch4.addConstraint(Sketcher.Constraint("Vertical", 11))
sketch4.addConstraint(Sketcher.Constraint("Horizontal", 12))
sketch4.addConstraint(Sketcher.Constraint("Vertical", 13))
sketch4.addConstraint(Sketcher.Constraint("Horizontal", 14))
sketch4.addConstraint(Sketcher.Constraint("Vertical", 15))
sketch4.addConstraint(Sketcher.Constraint("Equal", 2, 4))
sketch4.addConstraint(Sketcher.Constraint("Equal", 4, 8))
sketch4.addConstraint(Sketcher.Constraint("Equal", 8, 10))
sketch4.addConstraint(Sketcher.Constraint("Symmetric", 2, 3, 10, 3, -2))
sketch4.addConstraint(Sketcher.Constraint("Horizontal", 5, 2, 6, 2))
sketch4.addConstraint(Sketcher.Constraint("Horizontal", 11, 2, 12, 2))
sketch4.addConstraint(Sketcher.Constraint("Horizontal", 10, 2, 13, 2))
sketch4.addConstraint(Sketcher.Constraint("DistanceX", 12, 1, 12, 2, 48.0))
sketch4.addConstraint(Sketcher.Constraint("DistanceY", 1, 1, 1, 2, 4.0))
sketch4.addConstraint(Sketcher.Constraint("DistanceX", 0, 1, 0, 2, 32.5))
sketch4.addConstraint(Sketcher.Constraint("DistanceX", 6, 1, 6, 2, 38.5))
sketch4.addConstraint(Sketcher.Constraint("DistanceY", -1, 1, 2, 3, 5.999999))
sketch4.addConstraint(Sketcher.Constraint("DistanceX", -1, 1, 4, 1, 30.0))
sketch4.addConstraint(Sketcher.Constraint("DistanceX", -1, 1, 12, 2, 28.0))
sketch4.addConstraint(Sketcher.Constraint("Radius", 2, 5.214467))
pad4 = body.newObject("PartDesign::Pad", "Pad003")
pad4.Profile = sketch4
pad4.Length = 2
pad4.Midplane = True

# Sketch on XY plane
sketch5 = body.newObject("Sketcher::SketchObject", "Sketch004")
sketch5.AttachmentSupport = (doc.getObject("XY_Plane"), [""])
sketch5.MapMode = "FlatFace"
sketch5.AttachmentOffset = App.Placement(Vector(0, 0, 2), App.Rotation())
sketch5.addGeometry(Part.LineSegment(Vector(-41, 57.5, 0), Vector(-41, -57.5, 0)), False)
sketch5.addGeometry(Part.ArcOfCircle(Part.Circle(Vector(-36, -57.5, 0), Vector(0, 0, 1), 5), math.radians(179.999996), math.radians(270.000004)), False)
sketch5.addGeometry(Part.LineSegment(Vector(-36, -62.5, 0), Vector(14, -62.5, 0)), False)
sketch5.addGeometry(Part.LineSegment(Vector(14, -62.5, 0), Vector(14, -60.5, 0)), False)
sketch5.addGeometry(Part.LineSegment(Vector(14, -60.5, 0), Vector(-36, -60.5, 0)), False)
sketch5.addGeometry(Part.ArcOfCircle(Part.Circle(Vector(-35.999999, -57.499999, 0), Vector(0, 0, 1), 3.000001), math.radians(-179.999978), math.radians(-90.000022)), False)
sketch5.addGeometry(Part.LineSegment(Vector(-39, -57.5, 0), Vector(-39, 57.5, 0)), False)
sketch5.addGeometry(Part.ArcOfCircle(Part.Circle(Vector(-35.999999, 57.499999, 0), Vector(0, 0, 1), 3.000001), math.radians(90.000022), math.radians(179.999978)), False)
sketch5.addGeometry(Part.LineSegment(Vector(-36, 60.5, 0), Vector(14, 60.5, 0)), False)
sketch5.addGeometry(Part.LineSegment(Vector(14, 60.5, 0), Vector(14, 62.5, 0)), False)
sketch5.addGeometry(Part.LineSegment(Vector(14, 62.5, 0), Vector(-36, 62.5, 0)), False)
sketch5.addGeometry(Part.ArcOfCircle(Part.Circle(Vector(-36, 57.5, 0), Vector(0, 0, 1), 5), math.radians(89.999996), math.radians(180.000004)), False)
sketch5.addGeometry(Part.LineSegment(Vector(36, 62.5, 0), Vector(16, 62.5, 0)), False)
sketch5.addGeometry(Part.LineSegment(Vector(16, 62.5, 0), Vector(16, 60.5, 0)), False)
sketch5.addGeometry(Part.LineSegment(Vector(16, 60.5, 0), Vector(36, 60.5, 0)), False)
sketch5.addGeometry(Part.ArcOfCircle(Part.Circle(Vector(35.999999, 57.499999, 0), Vector(0, 0, 1), 3.000001), math.radians(0.000022), math.radians(89.999978)), False)
sketch5.addGeometry(Part.LineSegment(Vector(39, 57.5, 0), Vector(39, -57.5, 0)), False)
sketch5.addGeometry(Part.ArcOfCircle(Part.Circle(Vector(35.999999, -57.499999, 0), Vector(0, 0, 1), 3.000001), math.radians(-89.999978), math.radians(-0.000022)), False)
sketch5.addGeometry(Part.LineSegment(Vector(36, -60.5, 0), Vector(16, -60.5, 0)), False)
sketch5.addGeometry(Part.LineSegment(Vector(16, -60.5, 0), Vector(16, -62.5, 0)), False)
sketch5.addGeometry(Part.LineSegment(Vector(16, -62.5, 0), Vector(36, -62.5, 0)), False)
sketch5.addGeometry(Part.ArcOfCircle(Part.Circle(Vector(36, -57.5, 0), Vector(0, 0, 1), 5), math.radians(-90.000004), math.radians(0.000004)), False)
sketch5.addGeometry(Part.LineSegment(Vector(41, -57.5, 0), Vector(41, 57.5, 0)), False)
sketch5.addGeometry(Part.ArcOfCircle(Part.Circle(Vector(36, 57.5, 0), Vector(0, 0, 1), 5), math.radians(-0.000004), math.radians(90.000004)), False)
sketch5.addConstraint(Sketcher.Constraint("Tangent", 0, 2, 1, 1))
sketch5.addConstraint(Sketcher.Constraint("Tangent", 1, 2, 2, 1))
sketch5.addConstraint(Sketcher.Constraint("Coincident", 2, 2, 3, 1))
sketch5.addConstraint(Sketcher.Constraint("Coincident", 3, 2, 4, 1))
sketch5.addConstraint(Sketcher.Constraint("Tangent", 4, 2, 5, 2))
sketch5.addConstraint(Sketcher.Constraint("Tangent", 5, 1, 6, 1))
sketch5.addConstraint(Sketcher.Constraint("Tangent", 6, 2, 7, 2))
sketch5.addConstraint(Sketcher.Constraint("Tangent", 7, 1, 8, 1))
sketch5.addConstraint(Sketcher.Constraint("Coincident", 8, 2, 9, 1))
sketch5.addConstraint(Sketcher.Constraint("Coincident", 9, 2, 10, 1))
sketch5.addConstraint(Sketcher.Constraint("Tangent", 10, 2, 11, 1))
sketch5.addConstraint(Sketcher.Constraint("Tangent", 11, 2, 0, 1))
sketch5.addConstraint(Sketcher.Constraint("Coincident", 12, 2, 13, 1))
sketch5.addConstraint(Sketcher.Constraint("Coincident", 13, 2, 14, 1))
sketch5.addConstraint(Sketcher.Constraint("Tangent", 14, 2, 15, 2))
sketch5.addConstraint(Sketcher.Constraint("Tangent", 15, 1, 16, 1))
sketch5.addConstraint(Sketcher.Constraint("Tangent", 16, 2, 17, 2))
sketch5.addConstraint(Sketcher.Constraint("Tangent", 17, 1, 18, 1))
sketch5.addConstraint(Sketcher.Constraint("Coincident", 18, 2, 19, 1))
sketch5.addConstraint(Sketcher.Constraint("Coincident", 19, 2, 20, 1))
sketch5.addConstraint(Sketcher.Constraint("Tangent", 20, 2, 21, 1))
sketch5.addConstraint(Sketcher.Constraint("Tangent", 21, 2, 22, 1))
sketch5.addConstraint(Sketcher.Constraint("Tangent", 22, 2, 23, 1))
sketch5.addConstraint(Sketcher.Constraint("Tangent", 23, 2, 12, 1))
sketch5.addConstraint(Sketcher.Constraint("Vertical", 0))
sketch5.addConstraint(Sketcher.Constraint("Horizontal", 2))
sketch5.addConstraint(Sketcher.Constraint("Vertical", 3))
sketch5.addConstraint(Sketcher.Constraint("Horizontal", 4))
sketch5.addConstraint(Sketcher.Constraint("Vertical", 6))
sketch5.addConstraint(Sketcher.Constraint("Horizontal", 8))
sketch5.addConstraint(Sketcher.Constraint("Vertical", 9))
sketch5.addConstraint(Sketcher.Constraint("Horizontal", 10))
sketch5.addConstraint(Sketcher.Constraint("Horizontal", 12))
sketch5.addConstraint(Sketcher.Constraint("Vertical", 13))
sketch5.addConstraint(Sketcher.Constraint("Horizontal", 14))
sketch5.addConstraint(Sketcher.Constraint("Vertical", 16))
sketch5.addConstraint(Sketcher.Constraint("Horizontal", 18))
sketch5.addConstraint(Sketcher.Constraint("Vertical", 19))
sketch5.addConstraint(Sketcher.Constraint("Horizontal", 20))
sketch5.addConstraint(Sketcher.Constraint("Vertical", 22))
sketch5.addConstraint(Sketcher.Constraint("Coincident", 5, 3, 1, 3))
sketch5.addConstraint(Sketcher.Constraint("Coincident", 11, 3, 7, 3))
sketch5.addConstraint(Sketcher.Constraint("Coincident", 21, 3, 17, 3))
sketch5.addConstraint(Sketcher.Constraint("Coincident", 23, 3, 15, 3))
sketch5.addConstraint(Sketcher.Constraint("Equal", 5, 7))
sketch5.addConstraint(Sketcher.Constraint("Equal", 7, 15))
sketch5.addConstraint(Sketcher.Constraint("Equal", 15, 17))
sketch5.addConstraint(Sketcher.Constraint("Equal", 11, 21))
sketch5.addConstraint(Sketcher.Constraint("Symmetric", 1, 3, 15, 3, -1, 1))
sketch5.addConstraint(Sketcher.Constraint("Symmetric", 3, 2, 8, 2, -1))
sketch5.addConstraint(Sketcher.Constraint("Symmetric", 13, 2, 18, 2, -1))
sketch5.addConstraint(Sketcher.Constraint("Radius", 1, 5.0))
sketch5.addConstraint(Sketcher.Constraint("Radius", 5, 3.000001))
sketch5.addConstraint(Sketcher.Constraint("DistanceX", 2, 1, 2, 2, 50.0))
sketch5.addConstraint(Sketcher.Constraint("DistanceX", 12, 2, 12, 1, 20.0))
sketch5.addConstraint(Sketcher.Constraint("DistanceY", 0, 2, 0, 1, 115.0))
sketch5.addConstraint(Sketcher.Constraint("DistanceX", 1, 3, -1, 1, 36.0))
pad5 = body.newObject("PartDesign::Pad", "Pad004")
pad5.Profile = sketch5
pad5.Length = 4

doc.recompute()
